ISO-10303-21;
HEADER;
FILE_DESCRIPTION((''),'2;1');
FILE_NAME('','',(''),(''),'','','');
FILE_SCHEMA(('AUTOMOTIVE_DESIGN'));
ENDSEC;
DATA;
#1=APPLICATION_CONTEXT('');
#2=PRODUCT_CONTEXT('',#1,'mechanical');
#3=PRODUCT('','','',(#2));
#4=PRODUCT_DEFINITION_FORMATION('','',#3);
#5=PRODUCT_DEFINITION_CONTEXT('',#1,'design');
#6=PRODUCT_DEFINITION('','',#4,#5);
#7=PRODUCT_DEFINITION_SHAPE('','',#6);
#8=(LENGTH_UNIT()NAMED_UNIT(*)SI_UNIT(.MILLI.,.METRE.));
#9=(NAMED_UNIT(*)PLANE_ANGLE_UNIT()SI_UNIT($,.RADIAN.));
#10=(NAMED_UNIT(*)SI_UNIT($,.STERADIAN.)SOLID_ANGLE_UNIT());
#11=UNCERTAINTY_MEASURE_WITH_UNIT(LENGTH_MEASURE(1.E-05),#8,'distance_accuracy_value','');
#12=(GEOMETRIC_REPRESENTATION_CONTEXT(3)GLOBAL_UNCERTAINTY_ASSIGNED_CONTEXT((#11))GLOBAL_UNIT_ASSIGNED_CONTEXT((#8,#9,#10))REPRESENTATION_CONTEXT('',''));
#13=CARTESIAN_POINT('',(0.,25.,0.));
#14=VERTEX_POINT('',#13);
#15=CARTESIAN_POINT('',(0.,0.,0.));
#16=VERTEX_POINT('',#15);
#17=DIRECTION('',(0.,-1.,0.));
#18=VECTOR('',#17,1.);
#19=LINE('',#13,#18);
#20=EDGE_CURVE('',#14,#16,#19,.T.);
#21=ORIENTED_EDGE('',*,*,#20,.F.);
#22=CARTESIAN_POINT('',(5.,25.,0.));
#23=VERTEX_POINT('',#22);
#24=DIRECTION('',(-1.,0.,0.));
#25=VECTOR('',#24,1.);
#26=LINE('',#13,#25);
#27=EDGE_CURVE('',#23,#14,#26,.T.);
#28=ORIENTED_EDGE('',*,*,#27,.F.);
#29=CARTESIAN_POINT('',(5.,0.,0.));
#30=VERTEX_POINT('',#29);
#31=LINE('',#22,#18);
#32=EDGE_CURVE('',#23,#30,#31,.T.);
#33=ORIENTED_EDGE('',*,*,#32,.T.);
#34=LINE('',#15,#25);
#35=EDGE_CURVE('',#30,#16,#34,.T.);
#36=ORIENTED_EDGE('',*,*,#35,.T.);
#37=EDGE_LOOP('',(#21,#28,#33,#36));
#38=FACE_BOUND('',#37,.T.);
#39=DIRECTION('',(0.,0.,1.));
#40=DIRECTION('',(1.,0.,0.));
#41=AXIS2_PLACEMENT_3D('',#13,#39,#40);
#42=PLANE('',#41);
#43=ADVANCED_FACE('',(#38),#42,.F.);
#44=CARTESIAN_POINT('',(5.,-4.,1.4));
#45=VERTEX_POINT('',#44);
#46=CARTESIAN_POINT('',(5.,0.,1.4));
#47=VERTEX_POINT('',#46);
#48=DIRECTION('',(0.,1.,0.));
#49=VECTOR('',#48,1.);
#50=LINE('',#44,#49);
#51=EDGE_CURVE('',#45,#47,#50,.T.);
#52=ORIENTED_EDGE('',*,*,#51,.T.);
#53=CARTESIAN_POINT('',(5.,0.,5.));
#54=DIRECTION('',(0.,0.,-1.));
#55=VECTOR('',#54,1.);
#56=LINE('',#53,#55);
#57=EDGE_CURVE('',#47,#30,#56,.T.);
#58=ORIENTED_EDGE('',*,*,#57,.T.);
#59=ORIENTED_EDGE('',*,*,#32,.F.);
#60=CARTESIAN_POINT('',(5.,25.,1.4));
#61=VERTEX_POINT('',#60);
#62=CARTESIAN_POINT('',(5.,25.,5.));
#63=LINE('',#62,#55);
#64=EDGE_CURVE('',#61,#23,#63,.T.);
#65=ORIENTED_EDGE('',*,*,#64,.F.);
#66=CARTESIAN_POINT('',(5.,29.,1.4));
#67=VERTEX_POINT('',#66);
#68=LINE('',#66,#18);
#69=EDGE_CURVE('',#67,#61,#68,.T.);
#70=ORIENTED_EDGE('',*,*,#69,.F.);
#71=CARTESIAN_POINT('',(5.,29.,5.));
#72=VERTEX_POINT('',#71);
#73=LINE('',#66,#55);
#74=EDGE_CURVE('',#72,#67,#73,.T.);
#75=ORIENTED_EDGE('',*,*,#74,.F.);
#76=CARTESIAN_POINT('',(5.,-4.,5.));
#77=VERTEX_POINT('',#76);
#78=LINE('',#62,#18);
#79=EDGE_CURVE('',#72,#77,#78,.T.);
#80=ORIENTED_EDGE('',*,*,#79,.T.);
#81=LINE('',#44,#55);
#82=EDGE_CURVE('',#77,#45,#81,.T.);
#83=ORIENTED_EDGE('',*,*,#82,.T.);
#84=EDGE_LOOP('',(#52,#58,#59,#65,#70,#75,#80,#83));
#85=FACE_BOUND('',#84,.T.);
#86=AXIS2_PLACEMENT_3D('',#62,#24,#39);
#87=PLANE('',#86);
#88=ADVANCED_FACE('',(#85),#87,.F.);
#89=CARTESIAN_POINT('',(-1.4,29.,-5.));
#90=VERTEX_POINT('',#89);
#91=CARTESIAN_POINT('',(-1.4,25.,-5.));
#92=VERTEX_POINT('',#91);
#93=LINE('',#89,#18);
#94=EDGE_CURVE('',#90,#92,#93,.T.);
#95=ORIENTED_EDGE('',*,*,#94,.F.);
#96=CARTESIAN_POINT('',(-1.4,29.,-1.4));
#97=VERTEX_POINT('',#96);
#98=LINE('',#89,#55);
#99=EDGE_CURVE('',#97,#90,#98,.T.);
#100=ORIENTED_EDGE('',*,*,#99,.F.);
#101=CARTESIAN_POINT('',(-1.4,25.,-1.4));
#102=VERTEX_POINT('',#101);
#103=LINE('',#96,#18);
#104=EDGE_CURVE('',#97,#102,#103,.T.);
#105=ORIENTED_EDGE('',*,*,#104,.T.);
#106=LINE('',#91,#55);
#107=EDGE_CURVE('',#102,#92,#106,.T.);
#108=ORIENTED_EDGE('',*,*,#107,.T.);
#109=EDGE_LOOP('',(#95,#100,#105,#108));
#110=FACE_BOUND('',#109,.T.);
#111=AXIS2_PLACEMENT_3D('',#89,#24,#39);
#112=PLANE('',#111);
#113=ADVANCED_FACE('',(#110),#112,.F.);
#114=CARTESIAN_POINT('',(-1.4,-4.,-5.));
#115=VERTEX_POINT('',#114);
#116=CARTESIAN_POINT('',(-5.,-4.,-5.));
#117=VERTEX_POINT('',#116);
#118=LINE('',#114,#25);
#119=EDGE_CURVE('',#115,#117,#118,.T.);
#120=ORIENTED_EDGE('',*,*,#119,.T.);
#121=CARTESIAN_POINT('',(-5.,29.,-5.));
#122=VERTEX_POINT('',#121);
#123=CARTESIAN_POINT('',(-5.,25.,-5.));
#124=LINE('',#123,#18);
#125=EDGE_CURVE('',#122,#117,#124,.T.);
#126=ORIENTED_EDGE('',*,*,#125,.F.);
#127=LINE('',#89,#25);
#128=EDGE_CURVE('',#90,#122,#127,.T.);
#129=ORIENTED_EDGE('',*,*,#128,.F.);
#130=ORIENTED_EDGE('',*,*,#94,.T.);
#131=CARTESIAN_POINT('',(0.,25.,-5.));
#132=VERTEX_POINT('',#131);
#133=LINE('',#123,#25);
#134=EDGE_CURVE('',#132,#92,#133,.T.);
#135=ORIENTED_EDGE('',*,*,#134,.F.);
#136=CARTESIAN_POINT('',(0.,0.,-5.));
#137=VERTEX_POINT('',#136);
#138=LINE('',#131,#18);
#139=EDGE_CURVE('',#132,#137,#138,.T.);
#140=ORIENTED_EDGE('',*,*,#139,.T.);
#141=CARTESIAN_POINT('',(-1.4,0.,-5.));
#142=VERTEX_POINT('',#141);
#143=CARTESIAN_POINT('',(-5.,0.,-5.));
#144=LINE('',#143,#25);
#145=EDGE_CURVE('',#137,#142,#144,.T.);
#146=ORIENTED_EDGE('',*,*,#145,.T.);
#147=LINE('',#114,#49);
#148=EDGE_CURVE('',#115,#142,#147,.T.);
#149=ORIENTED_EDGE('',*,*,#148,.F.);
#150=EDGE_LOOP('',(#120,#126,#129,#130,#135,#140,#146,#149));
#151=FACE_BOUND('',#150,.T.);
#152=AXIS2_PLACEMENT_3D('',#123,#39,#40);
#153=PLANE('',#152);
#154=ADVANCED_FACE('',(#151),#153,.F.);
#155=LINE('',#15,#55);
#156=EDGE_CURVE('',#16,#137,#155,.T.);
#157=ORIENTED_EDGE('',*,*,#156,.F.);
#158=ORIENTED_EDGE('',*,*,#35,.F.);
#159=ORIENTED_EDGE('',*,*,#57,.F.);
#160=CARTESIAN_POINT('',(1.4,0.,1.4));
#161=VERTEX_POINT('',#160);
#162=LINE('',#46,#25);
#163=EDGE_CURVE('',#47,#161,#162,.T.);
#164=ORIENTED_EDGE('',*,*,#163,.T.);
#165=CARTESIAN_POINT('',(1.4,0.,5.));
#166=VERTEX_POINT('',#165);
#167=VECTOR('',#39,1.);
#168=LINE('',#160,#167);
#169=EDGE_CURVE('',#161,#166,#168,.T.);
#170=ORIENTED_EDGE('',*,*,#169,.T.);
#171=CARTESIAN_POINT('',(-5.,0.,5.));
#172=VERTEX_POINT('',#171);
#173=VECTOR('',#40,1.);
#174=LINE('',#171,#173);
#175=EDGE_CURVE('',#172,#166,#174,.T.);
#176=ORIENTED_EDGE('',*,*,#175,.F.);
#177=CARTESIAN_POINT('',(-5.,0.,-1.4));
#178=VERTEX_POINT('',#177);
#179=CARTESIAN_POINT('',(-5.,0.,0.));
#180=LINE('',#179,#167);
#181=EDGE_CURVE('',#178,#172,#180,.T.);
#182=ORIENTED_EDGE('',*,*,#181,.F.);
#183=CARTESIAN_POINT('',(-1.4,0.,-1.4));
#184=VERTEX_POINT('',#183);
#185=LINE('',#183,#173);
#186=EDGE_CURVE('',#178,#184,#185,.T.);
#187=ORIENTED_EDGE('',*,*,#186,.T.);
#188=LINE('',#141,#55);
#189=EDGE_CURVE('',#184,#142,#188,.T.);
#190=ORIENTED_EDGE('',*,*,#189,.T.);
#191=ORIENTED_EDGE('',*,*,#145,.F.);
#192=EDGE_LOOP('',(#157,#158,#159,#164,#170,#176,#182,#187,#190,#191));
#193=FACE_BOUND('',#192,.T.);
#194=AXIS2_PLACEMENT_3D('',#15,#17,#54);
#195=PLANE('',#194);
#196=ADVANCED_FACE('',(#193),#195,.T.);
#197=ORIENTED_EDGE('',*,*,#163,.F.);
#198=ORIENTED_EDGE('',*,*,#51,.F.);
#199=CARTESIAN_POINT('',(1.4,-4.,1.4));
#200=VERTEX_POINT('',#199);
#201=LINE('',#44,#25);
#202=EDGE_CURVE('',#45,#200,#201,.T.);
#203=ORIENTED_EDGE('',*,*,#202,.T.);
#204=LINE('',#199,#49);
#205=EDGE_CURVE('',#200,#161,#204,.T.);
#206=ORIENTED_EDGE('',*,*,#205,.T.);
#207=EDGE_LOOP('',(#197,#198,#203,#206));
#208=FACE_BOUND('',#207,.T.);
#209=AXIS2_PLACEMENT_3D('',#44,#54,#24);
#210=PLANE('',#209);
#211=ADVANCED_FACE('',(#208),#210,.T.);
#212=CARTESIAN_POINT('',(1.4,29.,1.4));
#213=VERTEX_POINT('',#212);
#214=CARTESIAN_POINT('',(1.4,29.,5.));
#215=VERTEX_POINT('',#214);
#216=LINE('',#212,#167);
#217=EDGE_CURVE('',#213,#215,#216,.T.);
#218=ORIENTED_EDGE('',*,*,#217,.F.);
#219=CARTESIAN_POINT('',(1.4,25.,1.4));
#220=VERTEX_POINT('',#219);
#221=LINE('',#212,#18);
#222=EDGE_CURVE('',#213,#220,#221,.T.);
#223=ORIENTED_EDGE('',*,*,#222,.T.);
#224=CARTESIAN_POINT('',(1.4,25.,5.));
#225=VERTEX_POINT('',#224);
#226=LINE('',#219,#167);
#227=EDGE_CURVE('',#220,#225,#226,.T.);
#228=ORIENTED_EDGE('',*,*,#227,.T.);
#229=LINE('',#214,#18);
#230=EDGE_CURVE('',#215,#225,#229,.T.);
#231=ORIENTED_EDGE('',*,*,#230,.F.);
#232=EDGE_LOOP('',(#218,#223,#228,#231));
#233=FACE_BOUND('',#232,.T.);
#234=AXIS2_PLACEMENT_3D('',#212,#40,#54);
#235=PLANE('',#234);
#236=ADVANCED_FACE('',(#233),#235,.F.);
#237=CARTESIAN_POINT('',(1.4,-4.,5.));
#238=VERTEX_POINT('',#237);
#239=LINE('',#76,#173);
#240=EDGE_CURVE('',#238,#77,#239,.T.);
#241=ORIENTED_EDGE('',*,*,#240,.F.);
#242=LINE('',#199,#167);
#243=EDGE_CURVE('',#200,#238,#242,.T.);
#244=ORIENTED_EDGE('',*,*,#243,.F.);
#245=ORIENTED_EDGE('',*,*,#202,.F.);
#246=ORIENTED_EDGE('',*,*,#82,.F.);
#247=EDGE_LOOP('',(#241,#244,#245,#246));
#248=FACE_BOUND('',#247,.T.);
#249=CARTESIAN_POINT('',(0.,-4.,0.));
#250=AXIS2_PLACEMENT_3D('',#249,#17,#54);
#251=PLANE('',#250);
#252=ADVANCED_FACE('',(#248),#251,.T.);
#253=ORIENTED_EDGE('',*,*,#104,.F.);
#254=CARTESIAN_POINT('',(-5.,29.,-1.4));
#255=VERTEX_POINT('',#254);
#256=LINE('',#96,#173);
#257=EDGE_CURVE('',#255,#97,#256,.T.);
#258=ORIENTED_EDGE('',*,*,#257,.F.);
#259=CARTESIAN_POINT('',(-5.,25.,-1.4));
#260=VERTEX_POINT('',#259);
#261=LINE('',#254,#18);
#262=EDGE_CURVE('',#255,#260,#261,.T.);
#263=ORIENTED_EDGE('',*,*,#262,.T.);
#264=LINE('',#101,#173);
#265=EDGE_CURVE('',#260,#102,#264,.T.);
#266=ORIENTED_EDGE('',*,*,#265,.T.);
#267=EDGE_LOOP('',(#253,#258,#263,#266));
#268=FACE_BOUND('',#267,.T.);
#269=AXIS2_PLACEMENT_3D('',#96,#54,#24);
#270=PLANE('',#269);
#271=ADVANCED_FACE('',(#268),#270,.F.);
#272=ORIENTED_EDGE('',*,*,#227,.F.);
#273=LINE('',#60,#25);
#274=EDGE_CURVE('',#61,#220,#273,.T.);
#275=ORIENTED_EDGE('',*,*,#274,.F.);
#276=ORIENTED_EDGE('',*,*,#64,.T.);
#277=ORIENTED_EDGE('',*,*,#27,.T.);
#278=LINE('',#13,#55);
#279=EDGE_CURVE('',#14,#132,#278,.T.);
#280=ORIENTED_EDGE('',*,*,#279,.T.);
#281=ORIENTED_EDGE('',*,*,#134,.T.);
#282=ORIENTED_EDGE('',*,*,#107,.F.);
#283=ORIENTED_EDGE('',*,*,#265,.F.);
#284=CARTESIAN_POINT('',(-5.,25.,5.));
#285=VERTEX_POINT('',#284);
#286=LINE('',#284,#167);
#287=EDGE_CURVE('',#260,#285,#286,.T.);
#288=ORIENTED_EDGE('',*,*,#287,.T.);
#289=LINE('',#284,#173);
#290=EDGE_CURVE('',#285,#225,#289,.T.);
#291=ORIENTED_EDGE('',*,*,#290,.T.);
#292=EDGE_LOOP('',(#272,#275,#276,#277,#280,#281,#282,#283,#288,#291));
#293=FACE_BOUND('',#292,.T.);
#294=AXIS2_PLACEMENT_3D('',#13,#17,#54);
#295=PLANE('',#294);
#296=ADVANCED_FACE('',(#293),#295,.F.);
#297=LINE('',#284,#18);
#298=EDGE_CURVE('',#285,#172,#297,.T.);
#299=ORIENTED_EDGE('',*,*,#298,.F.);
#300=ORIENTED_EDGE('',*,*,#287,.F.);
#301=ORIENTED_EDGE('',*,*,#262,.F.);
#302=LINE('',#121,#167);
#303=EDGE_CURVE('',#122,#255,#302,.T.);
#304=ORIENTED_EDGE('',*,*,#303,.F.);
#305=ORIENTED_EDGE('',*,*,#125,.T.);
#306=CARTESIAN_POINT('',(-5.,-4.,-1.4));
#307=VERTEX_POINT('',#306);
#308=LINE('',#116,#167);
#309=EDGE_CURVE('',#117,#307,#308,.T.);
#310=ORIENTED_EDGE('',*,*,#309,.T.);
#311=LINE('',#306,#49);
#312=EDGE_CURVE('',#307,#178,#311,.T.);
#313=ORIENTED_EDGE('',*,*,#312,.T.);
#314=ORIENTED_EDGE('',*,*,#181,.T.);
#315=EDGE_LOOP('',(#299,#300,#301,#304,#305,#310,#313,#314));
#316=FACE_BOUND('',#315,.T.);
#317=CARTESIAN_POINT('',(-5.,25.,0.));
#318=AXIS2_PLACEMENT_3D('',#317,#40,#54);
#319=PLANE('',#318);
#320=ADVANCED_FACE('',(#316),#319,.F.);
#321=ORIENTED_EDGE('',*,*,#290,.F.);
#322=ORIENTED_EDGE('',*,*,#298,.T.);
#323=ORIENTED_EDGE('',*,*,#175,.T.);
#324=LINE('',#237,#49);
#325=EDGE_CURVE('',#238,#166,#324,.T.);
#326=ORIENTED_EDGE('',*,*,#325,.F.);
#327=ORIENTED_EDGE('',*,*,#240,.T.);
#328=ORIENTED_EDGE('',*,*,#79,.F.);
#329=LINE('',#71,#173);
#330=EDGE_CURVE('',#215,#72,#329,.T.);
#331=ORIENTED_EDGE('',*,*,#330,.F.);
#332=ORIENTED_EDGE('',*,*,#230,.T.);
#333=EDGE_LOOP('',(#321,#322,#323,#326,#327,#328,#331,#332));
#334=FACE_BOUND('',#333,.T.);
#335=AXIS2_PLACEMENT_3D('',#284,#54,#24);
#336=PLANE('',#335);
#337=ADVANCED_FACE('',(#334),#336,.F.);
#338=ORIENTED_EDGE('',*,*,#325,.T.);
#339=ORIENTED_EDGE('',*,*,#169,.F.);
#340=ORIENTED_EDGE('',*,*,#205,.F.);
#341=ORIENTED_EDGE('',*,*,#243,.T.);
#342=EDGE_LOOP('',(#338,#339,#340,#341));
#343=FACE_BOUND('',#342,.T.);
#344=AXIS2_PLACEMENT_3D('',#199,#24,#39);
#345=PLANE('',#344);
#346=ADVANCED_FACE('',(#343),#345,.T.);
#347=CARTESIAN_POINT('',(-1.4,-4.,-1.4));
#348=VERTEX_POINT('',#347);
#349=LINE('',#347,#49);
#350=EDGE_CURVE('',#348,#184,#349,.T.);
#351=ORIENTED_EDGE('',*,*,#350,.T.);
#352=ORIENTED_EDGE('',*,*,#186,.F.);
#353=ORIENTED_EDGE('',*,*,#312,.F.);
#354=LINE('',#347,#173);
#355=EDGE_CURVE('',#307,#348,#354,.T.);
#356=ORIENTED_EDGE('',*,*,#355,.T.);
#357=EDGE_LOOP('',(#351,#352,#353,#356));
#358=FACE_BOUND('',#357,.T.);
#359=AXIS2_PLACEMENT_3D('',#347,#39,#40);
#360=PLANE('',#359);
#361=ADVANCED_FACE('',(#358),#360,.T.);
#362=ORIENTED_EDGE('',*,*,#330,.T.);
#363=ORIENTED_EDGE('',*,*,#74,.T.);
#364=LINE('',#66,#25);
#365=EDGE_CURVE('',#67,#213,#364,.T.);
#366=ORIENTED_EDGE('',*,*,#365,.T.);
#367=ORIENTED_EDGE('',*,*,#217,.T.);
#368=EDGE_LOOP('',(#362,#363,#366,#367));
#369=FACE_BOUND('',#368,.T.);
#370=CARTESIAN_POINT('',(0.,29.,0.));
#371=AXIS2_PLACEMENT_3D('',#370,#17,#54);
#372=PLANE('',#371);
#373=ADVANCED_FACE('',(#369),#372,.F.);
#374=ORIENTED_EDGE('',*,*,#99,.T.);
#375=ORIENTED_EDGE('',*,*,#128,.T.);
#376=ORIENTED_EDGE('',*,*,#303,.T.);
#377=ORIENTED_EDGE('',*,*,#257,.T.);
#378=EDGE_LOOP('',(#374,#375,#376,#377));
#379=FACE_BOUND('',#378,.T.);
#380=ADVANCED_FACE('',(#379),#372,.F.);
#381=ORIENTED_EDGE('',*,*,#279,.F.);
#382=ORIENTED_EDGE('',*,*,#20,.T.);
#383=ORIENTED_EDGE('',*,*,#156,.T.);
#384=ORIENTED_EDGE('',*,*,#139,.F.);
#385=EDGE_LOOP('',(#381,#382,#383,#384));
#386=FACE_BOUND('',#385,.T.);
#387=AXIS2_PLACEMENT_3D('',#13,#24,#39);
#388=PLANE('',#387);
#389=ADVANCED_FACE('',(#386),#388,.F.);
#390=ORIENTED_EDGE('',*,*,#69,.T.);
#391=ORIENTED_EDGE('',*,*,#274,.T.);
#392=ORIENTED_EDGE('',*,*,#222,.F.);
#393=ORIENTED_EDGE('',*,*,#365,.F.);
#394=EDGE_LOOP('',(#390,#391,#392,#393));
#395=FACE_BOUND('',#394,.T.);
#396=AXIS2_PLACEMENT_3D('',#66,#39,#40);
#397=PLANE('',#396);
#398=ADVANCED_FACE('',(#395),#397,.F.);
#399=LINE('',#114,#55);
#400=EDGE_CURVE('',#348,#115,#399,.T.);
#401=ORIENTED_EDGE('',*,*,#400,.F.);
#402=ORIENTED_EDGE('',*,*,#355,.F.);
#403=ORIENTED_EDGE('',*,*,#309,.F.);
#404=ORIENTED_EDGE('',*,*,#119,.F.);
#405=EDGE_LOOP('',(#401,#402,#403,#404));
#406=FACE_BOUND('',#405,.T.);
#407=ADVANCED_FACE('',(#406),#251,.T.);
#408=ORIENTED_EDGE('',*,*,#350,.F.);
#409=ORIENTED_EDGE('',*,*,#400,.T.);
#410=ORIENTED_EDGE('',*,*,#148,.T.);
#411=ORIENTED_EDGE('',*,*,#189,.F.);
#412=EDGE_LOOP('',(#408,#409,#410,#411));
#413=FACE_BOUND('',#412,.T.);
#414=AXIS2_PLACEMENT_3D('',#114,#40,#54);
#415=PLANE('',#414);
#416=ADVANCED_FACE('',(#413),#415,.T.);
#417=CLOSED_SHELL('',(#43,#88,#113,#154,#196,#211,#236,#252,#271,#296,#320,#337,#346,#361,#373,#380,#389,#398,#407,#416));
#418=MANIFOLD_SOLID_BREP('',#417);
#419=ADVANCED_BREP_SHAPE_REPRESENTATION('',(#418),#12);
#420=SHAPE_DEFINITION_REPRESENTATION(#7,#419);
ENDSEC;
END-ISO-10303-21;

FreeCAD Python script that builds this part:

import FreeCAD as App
import Part
import Sketcher
from FreeCAD import Vector


def add_polygon(sketch, points):
    """Adds a closed chain of lines whose ends are joined by coincident constraints."""
    first, n = sketch.GeometryCount, len(points)
    for a, b in zip(points, points[1:] + points[:1]):
        sketch.addGeometry(Part.LineSegment(App.Vector(*a, 0), App.Vector(*b, 0)), False)
    for i in range(n):
        sketch.addConstraint(Sketcher.Constraint("Coincident", first + i, 2, first + (i + 1) % n, 1))

doc = App.newDocument("Part")
body = doc.addObject("PartDesign::Body", "Body")

# Sketch on XZ plane
sketch1 = body.newObject("Sketcher::SketchObject", "Sketch")
sketch1.AttachmentSupport = (doc.getObject("XZ_Plane"), [""])
sketch1.MapMode = "FlatFace"
add_polygon(sketch1, [(-5, 5), (5, 5), (5, 0), (0, 0), (0, -5), (-5, -5)])  # lines 0-5
sketch1.addConstraint([
    Sketcher.Constraint("Horizontal", 0),
    Sketcher.Constraint("Vertical", 1),
    Sketcher.Constraint("Horizontal", 2),
    Sketcher.Constraint("Vertical", 3),
    Sketcher.Constraint("Horizontal", 4),
    Sketcher.Constraint("Vertical", 5),
    Sketcher.Constraint("Coincident", 2, 2, -1, 1),
    Sketcher.Constraint("Symmetric", 0, 2, 4, 2, -1, 1),
    Sketcher.Constraint("Equal", 4, 1),
    Sketcher.Constraint("DistanceX", 0, 1, 0, 2, 10.0),
])
pad1 = body.newObject("PartDesign::Pad", "Pad")
pad1.Profile = sketch1
pad1.Length = 25
pad1.Reversed = True

# Sketch on XZ plane
sketch2 = body.newObject("Sketcher::SketchObject", "Sketch001")
sketch2.AttachmentSupport = (doc.getObject("XZ_Plane"), [""])
sketch2.MapMode = "FlatFace"
add_polygon(sketch2, [(-5, -5), (-5, -1.4), (-1.4, -1.4), (-1.4, -5)])  # lines 0-3
add_polygon(sketch2, [(1.4, 1.4), (1.4, 5), (5, 5), (5, 1.4)])  # lines 4-7
sketch2.addConstraint([
    Sketcher.Constraint("Vertical", 0),
    Sketcher.Constraint("Horizontal", 1),
    Sketcher.Constraint("Vertical", 2),
    Sketcher.Constraint("Horizontal", 3),
    Sketcher.Constraint("Vertical", 4),
    Sketcher.Constraint("Horizontal", 5),
    Sketcher.Constraint("Vertical", 6),
    Sketcher.Constraint("Horizontal", 7),
    Sketcher.Constraint("Symmetric", 2, 2, 4, 2, -1, 1),
    Sketcher.Constraint("Symmetric", 0, 2, 6, 2, -1, 1),
    Sketcher.Constraint("Equal", 7, 0),
    Sketcher.Constraint("DistanceX", 1, 1, 1, 2, 3.6),
    Sketcher.Constraint("DistanceX", 0, 2, -1, 1, 5.0),
    Sketcher.Constraint("DistanceY", 2, 2, -1, 1, 5.0),
])
pad2 = body.newObject("PartDesign::Pad", "Pad001")
pad2.Profile = sketch2
pad2.Length = 4

# Sketch on XZ plane
sketch3 = body.newObject("Sketcher::SketchObject", "Sketch002")
sketch3.AttachmentSupport = (doc.getObject("XZ_Plane"), [""])
sketch3.MapMode = "FlatFace"
sketch3.AttachmentOffset = App.Placement(Vector(0, 0, -25), App.Rotation())
add_polygon(sketch3, [(-5, -5), (-5, -1.4), (-1.4, -1.4), (-1.4, -5)])  # lines 0-3
add_polygon(sketch3, [(1.4, 1.4), (1.4, 5), (5, 5), (5, 1.4)])  # lines 4-7
sketch3.addConstraint([
    Sketcher.Constraint("Vertical", 0),
    Sketcher.Constraint("Horizontal", 1),
    Sketcher.Constraint("Vertical", 2),
    Sketcher.Constraint("Horizontal", 3),
    Sketcher.Constraint("Vertical", 4),
    Sketcher.Constraint("Horizontal", 5),
    Sketcher.Constraint("Vertical", 6),
    Sketcher.Constraint("Horizontal", 7),
    Sketcher.Constraint("Symmetric", 2, 2, 4, 2, -1, 1),
    Sketcher.Constraint("Symmetric", 0, 2, 6, 2, -1, 1),
    Sketcher.Constraint("Equal", 7, 0),
    Sketcher.Constraint("DistanceX", 1, 1, 1, 2, 3.6),
    Sketcher.Constraint("DistanceX", 0, 2, -1, 1, 5.0),
    Sketcher.Constraint("DistanceY", 2, 2, -1, 1, 5.0),
])
pad3 = body.newObject("PartDesign::Pad", "Pad002")
pad3.Profile = sketch3
pad3.Length = 4
pad3.Reversed = True

doc.recompute()
